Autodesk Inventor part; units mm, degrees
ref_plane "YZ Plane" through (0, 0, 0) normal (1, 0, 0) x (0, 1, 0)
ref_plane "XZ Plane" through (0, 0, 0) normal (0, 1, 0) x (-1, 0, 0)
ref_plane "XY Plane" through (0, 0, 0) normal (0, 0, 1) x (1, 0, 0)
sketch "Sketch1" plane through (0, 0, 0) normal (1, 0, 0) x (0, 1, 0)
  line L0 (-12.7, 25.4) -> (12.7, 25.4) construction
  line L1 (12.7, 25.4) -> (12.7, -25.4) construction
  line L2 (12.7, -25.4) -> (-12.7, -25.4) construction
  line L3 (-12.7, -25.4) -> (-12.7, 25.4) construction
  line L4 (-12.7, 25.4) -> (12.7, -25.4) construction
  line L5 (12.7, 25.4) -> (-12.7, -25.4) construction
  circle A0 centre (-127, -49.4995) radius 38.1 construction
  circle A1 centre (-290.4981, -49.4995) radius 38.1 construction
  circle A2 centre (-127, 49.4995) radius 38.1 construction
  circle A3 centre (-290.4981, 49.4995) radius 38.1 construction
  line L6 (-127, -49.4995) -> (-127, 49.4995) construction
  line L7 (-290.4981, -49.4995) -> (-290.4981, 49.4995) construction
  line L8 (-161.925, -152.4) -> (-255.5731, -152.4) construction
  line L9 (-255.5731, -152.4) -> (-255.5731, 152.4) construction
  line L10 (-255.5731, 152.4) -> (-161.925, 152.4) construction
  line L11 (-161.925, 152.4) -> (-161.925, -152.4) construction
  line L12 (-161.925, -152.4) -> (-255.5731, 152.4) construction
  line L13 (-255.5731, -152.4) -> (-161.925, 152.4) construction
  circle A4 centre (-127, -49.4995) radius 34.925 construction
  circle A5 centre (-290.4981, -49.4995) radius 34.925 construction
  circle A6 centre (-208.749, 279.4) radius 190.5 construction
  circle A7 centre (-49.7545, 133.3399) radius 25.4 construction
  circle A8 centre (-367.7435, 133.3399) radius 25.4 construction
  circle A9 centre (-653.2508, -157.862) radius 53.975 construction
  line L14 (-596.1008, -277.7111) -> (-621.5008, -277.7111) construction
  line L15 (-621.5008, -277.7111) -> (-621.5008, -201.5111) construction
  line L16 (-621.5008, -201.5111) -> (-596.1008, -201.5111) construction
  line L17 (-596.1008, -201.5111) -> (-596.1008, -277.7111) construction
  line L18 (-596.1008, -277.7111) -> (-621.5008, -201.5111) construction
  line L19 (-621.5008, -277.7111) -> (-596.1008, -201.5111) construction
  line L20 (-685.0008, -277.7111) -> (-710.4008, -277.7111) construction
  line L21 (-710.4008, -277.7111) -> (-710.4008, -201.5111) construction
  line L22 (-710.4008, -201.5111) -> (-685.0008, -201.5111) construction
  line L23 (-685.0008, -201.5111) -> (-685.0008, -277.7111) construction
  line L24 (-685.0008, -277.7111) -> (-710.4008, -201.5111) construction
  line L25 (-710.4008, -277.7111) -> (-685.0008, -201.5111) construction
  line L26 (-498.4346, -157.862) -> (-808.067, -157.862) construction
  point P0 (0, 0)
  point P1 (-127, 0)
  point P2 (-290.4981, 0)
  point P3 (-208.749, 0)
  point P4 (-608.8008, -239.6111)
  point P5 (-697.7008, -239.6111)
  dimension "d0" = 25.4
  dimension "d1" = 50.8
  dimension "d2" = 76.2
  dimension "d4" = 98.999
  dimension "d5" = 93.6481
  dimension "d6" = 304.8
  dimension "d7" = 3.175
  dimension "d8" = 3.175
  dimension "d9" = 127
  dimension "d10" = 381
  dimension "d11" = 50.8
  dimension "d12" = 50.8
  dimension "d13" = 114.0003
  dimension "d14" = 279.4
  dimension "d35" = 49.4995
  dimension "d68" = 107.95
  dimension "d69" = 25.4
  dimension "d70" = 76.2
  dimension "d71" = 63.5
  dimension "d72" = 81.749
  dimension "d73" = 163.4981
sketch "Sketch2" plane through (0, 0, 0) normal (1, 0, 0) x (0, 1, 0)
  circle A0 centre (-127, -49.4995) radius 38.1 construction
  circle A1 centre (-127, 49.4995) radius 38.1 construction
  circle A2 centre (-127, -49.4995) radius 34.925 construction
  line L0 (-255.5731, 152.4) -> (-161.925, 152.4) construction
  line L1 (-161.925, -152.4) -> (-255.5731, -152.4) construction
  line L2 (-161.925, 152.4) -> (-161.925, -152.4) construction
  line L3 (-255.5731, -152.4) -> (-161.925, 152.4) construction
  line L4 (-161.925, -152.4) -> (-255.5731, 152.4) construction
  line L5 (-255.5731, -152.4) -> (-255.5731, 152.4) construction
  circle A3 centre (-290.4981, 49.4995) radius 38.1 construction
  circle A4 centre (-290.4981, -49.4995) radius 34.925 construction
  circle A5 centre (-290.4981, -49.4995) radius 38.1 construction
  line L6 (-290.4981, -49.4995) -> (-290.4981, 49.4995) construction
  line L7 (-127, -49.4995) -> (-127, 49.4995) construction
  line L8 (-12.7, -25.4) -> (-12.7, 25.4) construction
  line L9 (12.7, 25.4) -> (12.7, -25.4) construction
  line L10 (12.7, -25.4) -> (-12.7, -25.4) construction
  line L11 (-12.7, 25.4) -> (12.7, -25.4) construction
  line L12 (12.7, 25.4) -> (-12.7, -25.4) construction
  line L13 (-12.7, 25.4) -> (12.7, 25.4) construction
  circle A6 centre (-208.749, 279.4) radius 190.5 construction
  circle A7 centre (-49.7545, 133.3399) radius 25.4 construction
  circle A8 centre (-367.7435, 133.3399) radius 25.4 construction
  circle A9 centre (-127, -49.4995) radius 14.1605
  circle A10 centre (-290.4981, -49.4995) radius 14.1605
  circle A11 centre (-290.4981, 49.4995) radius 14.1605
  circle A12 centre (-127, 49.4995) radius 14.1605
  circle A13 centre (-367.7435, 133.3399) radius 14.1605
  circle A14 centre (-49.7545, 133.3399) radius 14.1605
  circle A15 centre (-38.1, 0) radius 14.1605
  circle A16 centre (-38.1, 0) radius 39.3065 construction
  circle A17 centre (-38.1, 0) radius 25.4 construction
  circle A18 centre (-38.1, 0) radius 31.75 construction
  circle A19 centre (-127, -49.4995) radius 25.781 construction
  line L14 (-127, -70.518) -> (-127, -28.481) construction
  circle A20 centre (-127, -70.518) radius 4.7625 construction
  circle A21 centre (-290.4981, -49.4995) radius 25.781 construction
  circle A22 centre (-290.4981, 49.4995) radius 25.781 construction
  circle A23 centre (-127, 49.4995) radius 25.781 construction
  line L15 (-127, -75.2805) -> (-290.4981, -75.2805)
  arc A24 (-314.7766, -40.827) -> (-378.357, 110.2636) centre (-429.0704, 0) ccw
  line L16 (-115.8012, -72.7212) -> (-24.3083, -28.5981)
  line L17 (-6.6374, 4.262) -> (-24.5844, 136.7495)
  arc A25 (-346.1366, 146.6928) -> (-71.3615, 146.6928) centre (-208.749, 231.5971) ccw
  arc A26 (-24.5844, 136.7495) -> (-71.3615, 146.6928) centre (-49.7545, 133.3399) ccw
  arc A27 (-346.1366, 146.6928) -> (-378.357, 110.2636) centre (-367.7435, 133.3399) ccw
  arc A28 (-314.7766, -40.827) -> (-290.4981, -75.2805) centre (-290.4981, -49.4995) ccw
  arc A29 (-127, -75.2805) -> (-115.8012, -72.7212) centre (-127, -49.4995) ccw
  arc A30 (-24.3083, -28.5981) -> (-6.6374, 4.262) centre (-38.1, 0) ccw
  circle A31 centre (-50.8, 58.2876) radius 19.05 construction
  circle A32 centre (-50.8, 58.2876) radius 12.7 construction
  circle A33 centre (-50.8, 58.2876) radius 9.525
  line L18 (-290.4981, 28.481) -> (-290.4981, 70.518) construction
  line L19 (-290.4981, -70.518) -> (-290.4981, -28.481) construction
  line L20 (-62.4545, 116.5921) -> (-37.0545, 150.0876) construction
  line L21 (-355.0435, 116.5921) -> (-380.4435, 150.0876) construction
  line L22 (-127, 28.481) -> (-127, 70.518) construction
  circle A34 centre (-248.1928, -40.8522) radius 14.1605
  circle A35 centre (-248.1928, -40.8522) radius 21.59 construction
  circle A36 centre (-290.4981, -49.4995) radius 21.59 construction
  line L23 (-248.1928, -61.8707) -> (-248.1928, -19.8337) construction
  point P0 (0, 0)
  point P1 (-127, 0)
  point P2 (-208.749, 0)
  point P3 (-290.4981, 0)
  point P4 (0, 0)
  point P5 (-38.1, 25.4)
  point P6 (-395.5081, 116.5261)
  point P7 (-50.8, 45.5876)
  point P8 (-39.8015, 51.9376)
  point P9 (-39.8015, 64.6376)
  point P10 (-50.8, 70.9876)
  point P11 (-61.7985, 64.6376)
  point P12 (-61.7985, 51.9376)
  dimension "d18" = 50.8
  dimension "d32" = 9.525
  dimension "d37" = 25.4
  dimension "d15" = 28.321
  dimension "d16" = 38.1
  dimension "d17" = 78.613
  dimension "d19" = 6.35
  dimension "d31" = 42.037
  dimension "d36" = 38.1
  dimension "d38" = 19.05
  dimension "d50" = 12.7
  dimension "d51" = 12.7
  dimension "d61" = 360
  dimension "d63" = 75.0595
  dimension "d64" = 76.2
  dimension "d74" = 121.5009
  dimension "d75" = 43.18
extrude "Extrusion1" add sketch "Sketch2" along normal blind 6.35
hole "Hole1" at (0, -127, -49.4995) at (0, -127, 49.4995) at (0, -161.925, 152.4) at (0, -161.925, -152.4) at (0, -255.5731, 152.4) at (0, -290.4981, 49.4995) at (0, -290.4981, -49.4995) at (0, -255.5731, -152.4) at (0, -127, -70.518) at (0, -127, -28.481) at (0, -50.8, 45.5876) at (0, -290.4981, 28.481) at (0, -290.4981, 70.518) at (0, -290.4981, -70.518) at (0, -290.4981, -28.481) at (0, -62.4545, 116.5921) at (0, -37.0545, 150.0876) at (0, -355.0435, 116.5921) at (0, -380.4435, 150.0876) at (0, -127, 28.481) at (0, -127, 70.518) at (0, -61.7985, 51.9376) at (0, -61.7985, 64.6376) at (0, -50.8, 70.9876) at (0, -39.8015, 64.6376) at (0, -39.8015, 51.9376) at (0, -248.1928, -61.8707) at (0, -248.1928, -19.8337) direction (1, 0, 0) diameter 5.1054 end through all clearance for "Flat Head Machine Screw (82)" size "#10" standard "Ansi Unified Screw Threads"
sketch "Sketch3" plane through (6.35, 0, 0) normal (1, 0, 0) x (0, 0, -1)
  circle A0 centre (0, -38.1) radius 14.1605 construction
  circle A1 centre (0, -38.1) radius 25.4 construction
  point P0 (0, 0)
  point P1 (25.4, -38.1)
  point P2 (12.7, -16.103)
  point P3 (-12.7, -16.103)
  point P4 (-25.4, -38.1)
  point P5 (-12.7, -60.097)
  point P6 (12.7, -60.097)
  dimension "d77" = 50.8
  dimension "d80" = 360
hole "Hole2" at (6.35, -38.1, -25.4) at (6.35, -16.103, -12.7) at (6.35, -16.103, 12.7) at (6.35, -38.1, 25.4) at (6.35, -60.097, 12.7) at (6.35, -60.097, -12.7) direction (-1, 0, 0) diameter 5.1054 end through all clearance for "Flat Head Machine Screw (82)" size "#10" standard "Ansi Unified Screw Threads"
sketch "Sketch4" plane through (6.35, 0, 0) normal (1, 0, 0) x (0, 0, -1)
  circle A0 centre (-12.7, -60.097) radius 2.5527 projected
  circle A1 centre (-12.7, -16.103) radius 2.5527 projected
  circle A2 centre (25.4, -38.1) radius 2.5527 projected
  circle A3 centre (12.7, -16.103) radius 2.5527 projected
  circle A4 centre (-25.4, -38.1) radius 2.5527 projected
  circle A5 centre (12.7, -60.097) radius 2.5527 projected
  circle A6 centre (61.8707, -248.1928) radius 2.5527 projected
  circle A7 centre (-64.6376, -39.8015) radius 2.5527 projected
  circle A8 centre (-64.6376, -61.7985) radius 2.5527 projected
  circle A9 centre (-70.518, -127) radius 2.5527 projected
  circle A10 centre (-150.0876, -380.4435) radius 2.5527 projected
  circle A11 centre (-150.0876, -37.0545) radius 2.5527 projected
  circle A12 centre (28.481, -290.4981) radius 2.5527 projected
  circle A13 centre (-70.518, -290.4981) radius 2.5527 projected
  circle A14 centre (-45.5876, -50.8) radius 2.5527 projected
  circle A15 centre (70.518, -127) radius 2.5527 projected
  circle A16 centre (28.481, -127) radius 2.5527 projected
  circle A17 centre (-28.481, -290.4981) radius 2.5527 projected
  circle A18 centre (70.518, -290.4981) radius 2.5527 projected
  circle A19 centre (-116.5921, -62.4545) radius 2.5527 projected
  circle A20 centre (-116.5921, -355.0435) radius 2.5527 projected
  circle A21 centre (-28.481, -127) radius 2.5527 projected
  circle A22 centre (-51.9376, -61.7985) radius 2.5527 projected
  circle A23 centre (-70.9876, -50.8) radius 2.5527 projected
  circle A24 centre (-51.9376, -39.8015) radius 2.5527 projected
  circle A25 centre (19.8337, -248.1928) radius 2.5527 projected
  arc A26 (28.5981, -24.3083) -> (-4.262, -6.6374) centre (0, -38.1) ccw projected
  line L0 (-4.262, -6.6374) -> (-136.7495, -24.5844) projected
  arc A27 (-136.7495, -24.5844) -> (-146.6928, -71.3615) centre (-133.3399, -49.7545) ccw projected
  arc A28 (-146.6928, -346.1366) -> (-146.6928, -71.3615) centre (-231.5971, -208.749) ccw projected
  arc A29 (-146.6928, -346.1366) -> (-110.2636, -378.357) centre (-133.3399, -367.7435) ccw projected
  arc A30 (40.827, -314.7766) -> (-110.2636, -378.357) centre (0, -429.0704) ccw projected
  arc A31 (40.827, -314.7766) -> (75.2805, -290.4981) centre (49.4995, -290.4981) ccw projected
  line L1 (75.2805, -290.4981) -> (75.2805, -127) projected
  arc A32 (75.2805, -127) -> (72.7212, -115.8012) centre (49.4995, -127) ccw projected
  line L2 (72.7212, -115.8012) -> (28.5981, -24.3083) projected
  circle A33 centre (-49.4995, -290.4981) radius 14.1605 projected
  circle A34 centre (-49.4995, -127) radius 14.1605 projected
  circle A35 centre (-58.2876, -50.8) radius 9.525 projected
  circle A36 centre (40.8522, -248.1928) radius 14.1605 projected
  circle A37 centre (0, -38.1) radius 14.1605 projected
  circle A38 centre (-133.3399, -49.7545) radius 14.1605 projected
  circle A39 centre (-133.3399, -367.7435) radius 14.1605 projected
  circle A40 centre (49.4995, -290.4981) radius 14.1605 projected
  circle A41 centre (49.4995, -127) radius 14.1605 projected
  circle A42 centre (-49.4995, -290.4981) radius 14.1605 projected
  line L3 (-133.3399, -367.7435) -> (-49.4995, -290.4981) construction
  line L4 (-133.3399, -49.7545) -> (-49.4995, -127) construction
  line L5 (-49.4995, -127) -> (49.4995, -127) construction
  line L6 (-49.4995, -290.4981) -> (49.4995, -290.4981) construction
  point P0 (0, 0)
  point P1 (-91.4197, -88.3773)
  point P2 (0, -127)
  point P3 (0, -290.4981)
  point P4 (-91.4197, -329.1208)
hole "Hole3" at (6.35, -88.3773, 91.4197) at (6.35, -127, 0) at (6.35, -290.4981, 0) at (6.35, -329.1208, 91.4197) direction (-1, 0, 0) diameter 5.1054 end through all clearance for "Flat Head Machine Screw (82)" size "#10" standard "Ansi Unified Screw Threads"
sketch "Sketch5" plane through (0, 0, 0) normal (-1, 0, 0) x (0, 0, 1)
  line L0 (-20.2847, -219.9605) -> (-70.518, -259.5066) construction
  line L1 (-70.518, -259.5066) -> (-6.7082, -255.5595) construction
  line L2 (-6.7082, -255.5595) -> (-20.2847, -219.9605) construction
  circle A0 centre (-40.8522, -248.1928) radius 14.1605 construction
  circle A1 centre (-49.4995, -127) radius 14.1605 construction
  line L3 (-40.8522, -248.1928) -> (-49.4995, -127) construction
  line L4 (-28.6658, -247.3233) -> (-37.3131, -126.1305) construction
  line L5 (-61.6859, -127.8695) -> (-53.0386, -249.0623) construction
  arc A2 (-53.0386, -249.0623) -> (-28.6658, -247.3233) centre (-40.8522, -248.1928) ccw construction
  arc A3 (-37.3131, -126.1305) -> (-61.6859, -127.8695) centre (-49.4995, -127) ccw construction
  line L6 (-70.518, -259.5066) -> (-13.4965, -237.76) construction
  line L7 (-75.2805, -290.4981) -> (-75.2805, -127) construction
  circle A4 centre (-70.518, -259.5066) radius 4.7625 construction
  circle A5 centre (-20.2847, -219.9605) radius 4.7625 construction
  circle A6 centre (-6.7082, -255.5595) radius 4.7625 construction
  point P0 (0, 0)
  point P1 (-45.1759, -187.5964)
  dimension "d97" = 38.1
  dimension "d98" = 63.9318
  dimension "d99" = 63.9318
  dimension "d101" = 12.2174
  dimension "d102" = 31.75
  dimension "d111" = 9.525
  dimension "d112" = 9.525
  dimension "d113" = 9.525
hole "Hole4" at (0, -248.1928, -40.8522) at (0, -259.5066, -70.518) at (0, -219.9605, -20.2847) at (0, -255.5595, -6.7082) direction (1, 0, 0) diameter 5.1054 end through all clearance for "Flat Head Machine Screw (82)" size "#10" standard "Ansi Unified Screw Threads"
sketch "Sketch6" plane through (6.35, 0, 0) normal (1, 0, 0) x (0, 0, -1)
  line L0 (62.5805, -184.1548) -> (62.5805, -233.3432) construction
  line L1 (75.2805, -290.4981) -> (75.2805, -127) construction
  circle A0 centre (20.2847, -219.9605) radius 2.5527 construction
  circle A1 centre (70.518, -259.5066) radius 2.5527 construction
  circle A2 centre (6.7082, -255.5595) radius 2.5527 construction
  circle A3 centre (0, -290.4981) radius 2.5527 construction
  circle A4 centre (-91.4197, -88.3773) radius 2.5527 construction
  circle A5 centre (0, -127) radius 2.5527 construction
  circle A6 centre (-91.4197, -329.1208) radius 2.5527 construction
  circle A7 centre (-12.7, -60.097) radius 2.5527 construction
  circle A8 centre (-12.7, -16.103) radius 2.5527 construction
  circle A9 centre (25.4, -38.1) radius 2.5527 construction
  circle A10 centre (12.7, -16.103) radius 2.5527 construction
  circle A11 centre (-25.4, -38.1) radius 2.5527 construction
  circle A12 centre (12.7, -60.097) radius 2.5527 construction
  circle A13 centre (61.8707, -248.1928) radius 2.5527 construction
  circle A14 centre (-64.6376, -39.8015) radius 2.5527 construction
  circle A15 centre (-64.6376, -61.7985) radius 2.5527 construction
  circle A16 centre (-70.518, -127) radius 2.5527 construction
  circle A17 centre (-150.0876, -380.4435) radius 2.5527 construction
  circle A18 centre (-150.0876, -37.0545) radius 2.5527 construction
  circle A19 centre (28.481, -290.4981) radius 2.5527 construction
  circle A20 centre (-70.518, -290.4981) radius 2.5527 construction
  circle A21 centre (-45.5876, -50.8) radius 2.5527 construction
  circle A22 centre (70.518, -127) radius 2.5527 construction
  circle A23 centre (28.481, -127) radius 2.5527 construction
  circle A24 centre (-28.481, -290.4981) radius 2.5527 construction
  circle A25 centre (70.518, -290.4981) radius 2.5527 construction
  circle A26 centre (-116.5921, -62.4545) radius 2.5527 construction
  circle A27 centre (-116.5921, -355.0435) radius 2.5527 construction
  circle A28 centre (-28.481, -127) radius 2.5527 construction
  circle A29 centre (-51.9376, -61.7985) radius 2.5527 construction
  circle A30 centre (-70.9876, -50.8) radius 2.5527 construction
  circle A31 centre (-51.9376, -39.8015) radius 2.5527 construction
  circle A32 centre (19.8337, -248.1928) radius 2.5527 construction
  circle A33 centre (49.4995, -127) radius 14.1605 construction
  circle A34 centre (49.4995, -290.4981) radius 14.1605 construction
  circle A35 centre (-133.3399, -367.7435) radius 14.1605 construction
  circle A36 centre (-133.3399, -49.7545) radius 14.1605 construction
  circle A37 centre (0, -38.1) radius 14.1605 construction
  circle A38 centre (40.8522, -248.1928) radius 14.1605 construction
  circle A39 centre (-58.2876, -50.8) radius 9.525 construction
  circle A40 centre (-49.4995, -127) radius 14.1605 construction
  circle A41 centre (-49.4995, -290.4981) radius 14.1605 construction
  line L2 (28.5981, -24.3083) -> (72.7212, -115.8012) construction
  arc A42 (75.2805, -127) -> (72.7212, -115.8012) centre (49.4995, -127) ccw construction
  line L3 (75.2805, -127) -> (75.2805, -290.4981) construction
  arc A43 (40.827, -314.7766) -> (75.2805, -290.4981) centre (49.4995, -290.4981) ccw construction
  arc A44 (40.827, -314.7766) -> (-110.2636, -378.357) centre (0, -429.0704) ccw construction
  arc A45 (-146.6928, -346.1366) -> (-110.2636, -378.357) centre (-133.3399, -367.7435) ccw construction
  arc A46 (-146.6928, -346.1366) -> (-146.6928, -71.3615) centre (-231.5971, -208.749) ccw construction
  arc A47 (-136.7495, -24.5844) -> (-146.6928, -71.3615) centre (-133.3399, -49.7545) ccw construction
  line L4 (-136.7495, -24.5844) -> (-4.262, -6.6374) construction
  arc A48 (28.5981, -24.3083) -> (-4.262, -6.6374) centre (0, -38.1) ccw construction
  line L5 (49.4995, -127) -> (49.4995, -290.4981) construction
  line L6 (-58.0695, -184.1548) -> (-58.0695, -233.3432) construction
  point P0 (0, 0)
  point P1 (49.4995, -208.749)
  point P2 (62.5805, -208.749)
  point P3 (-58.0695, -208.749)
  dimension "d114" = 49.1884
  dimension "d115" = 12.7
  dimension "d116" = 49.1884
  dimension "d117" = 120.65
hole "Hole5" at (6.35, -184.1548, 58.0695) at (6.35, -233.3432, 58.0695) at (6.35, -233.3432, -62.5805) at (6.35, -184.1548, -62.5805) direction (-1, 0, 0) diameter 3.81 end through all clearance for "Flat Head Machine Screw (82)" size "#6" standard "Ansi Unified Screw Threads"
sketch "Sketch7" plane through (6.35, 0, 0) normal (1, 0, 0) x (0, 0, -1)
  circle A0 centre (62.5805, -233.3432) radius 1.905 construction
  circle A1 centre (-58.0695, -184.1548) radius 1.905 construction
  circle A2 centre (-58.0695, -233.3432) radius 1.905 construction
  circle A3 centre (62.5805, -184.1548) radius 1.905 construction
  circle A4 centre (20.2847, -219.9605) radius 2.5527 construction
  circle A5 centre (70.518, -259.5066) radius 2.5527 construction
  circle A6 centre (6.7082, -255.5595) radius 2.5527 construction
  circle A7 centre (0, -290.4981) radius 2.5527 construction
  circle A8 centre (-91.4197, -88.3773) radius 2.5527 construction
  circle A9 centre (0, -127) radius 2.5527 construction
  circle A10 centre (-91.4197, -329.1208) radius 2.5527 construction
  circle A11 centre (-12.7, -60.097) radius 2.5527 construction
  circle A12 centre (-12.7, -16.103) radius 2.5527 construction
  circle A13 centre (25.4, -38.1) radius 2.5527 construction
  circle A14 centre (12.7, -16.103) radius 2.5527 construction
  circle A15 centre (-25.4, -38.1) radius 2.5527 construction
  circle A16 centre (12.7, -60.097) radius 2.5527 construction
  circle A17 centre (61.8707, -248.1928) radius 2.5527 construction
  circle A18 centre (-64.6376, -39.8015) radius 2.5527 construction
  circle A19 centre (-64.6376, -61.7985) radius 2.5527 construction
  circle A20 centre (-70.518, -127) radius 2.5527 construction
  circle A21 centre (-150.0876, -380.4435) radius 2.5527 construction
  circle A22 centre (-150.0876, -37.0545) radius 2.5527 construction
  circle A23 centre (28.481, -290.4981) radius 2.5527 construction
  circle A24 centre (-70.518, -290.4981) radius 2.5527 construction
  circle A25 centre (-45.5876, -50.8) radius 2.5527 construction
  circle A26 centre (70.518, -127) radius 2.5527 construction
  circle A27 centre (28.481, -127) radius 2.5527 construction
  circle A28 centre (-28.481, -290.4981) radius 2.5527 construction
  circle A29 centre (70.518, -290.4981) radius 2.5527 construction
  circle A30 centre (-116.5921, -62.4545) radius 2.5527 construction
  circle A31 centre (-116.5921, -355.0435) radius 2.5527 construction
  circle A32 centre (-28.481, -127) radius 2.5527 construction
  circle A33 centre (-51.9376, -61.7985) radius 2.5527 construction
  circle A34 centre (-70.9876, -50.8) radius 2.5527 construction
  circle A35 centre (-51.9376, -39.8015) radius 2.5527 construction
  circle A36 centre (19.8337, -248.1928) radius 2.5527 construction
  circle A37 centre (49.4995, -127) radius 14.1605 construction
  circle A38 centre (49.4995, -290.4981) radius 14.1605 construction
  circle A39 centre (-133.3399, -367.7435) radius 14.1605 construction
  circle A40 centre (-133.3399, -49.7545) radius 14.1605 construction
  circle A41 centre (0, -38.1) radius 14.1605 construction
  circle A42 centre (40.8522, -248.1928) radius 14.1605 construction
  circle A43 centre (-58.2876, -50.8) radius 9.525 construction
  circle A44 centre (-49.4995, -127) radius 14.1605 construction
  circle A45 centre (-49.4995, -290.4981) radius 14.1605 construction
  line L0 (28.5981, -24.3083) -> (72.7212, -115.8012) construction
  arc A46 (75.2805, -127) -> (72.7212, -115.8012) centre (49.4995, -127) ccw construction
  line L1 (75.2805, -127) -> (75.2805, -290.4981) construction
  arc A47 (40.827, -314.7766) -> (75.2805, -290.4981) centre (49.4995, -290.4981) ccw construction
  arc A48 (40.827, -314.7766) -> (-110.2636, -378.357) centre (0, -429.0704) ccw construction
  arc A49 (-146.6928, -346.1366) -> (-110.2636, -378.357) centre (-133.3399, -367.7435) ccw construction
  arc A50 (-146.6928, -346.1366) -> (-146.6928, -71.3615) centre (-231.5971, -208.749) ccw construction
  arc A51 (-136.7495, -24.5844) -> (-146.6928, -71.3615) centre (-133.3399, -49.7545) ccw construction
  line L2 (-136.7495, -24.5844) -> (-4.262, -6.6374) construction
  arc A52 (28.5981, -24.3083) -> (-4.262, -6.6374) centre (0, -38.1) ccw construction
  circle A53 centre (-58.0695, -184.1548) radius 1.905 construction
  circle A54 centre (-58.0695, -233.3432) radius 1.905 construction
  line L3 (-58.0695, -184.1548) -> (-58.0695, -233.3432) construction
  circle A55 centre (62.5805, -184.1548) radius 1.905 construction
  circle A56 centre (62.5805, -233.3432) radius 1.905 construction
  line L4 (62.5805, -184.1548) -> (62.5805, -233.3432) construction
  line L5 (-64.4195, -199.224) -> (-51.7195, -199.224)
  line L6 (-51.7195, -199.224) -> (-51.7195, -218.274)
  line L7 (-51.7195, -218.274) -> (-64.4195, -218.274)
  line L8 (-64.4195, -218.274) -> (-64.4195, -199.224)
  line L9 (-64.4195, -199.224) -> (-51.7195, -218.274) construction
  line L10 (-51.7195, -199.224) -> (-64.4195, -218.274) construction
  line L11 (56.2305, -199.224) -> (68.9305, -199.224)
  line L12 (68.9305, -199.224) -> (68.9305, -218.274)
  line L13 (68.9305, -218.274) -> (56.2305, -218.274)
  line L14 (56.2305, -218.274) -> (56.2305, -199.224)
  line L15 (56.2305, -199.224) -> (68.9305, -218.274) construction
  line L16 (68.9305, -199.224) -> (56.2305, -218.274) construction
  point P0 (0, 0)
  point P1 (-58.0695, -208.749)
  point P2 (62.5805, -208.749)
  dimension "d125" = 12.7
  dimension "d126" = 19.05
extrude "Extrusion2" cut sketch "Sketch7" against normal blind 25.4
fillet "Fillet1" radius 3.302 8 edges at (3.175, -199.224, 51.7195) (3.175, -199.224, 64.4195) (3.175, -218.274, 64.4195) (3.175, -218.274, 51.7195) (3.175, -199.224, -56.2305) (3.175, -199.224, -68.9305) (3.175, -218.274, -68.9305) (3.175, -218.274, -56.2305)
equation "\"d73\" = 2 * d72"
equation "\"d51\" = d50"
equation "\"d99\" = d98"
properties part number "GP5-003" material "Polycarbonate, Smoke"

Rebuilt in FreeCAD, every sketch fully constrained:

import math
import FreeCAD as App
import Part
import Sketcher
from FreeCAD import Vector
Q = App.Units.Quantity


def edges_at(feature, points):
    """Names of the edges that pass closest to the given points."""
    edges = feature.Shape.Edges
    near = lambda p: min(range(len(edges)), key=lambda i: edges[i].distToShape(Part.Vertex(*p))[0])
    return sorted({f"Edge{near(p) + 1}" for p in points})


def add_polygon(sketch, points):
    """Adds a closed chain of lines whose ends are joined by coincident constraints."""
    first, n = sketch.GeometryCount, len(points)
    for a, b in zip(points, points[1:] + points[:1]):
        sketch.addGeometry(Part.LineSegment(App.Vector(*a, 0), App.Vector(*b, 0)), False)
    for i in range(n):
        sketch.addConstraint(Sketcher.Constraint("Coincident", first + i, 2, first + (i + 1) % n, 1))

doc = App.newDocument("Part")
body = doc.addObject("PartDesign::Body", "Body")

# Sketch on YZ plane
sketch1 = doc.addObject("Sketcher::SketchObject", "Sketch")
body.addObject(sketch1)
sketch1.AttachmentSupport = (doc.YZ_Plane, [""])
sketch1.MapMode = "FlatFace"
sketch1.addGeometry([
    Part.LineSegment(Vector(-290, -75, 0), Vector(-127, -75, 0)),  # 0
    Part.ArcOfCircle(Part.Circle(Vector(-127, -49, 0), Vector(0, 0, 1), 26), math.radians(-90), math.radians(-64)),  # 1
    Part.LineSegment(Vector(-116, -73, 0), Vector(-24, -29, 0)),  # 2
    Part.ArcOfCircle(Part.Circle(Vector(-38, 0, 0), Vector(0, 0, 1), 32), math.radians(-64), math.radians(8)),  # 3
    Part.LineSegment(Vector(-7, 4, 0), Vector(-25, 137, 0)),  # 4
    Part.ArcOfCircle(Part.Circle(Vector(-50, 133, 0), Vector(0, 0, 1), 25), math.radians(8), math.radians(148)),  # 5
    Part.ArcOfCircle(Part.Circle(Vector(-209, 232, 0), Vector(0, 0, 1), 162), math.radians(-148), math.radians(-32)),  # 6
    Part.ArcOfCircle(Part.Circle(Vector(-368, 133, 0), Vector(0, 0, 1), 25), math.radians(32), math.radians(245)),  # 7
    Part.ArcOfCircle(Part.Circle(Vector(-429, 0, 0), Vector(0, 0, 1), 121), math.radians(-20), math.radians(65)),  # 8
    Part.ArcOfCircle(Part.Circle(Vector(-290, -49, 0), Vector(0, 0, 1), 26), math.radians(160), math.radians(270)),  # 9
    Part.Circle(Vector(-290, -49, 0), Vector(0, 0, 1), 14),  # 10
    Part.Circle(Vector(-248, -41, 0), Vector(0, 0, 1), 14),  # 11
    Part.Circle(Vector(-127, -49, 0), Vector(0, 0, 1), 14),  # 12
    Part.Circle(Vector(-38, 0, 0), Vector(0, 0, 1), 14),  # 13
    Part.Circle(Vector(-290, 49, 0), Vector(0, 0, 1), 14),  # 14
    Part.Circle(Vector(-368, 133, 0), Vector(0, 0, 1), 14),  # 15
    Part.Circle(Vector(-127, 49, 0), Vector(0, 0, 1), 14),  # 16
    Part.Circle(Vector(-51, 58, 0), Vector(0, 0, 1), 10),  # 17
    Part.Circle(Vector(-50, 133, 0), Vector(0, 0, 1), 14),  # 18
], False)
sketch1.addConstraint([
    Sketcher.Constraint("Tangent", 0, 2, 1, 1),
    Sketcher.Constraint("Tangent", 1, 2, 2, 1),
    Sketcher.Constraint("Tangent", 2, 2, 3, 1),
    Sketcher.Constraint("Tangent", 3, 2, 4, 1),
    Sketcher.Constraint("Tangent", 4, 2, 5, 1),
    Sketcher.Constraint("Tangent", 5, 2, 6, 2),
    Sketcher.Constraint("Tangent", 6, 1, 7, 1),
    Sketcher.Constraint("Tangent", 7, 2, 8, 2),
    Sketcher.Constraint("Tangent", 8, 1, 9, 1),
    Sketcher.Constraint("Tangent", 9, 2, 0, 1),
    Sketcher.Constraint("Horizontal", 0),
    Sketcher.Constraint("Coincident", 10, 3, 9, 3),
    Sketcher.Constraint("Coincident", 12, 3, 1, 3),
    Sketcher.Constraint("Coincident", 13, 3, 3, 3),
    Sketcher.Constraint("Coincident", 15, 3, 7, 3),
    Sketcher.Constraint("Coincident", 18, 3, 5, 3),
    Sketcher.Constraint("Equal", 5, 7),
    Sketcher.Constraint("Equal", 1, 9),
    Sketcher.Constraint("Equal", 10, 11),
    Sketcher.Constraint("Equal", 11, 12),
    Sketcher.Constraint("Equal", 12, 13),
    Sketcher.Constraint("Equal", 13, 14),
    Sketcher.Constraint("Equal", 14, 15),
    Sketcher.Constraint("Equal", 15, 16),
    Sketcher.Constraint("Equal", 16, 18),
    Sketcher.Constraint("Symmetric", 9, 3, 14, 3, -1),
    Sketcher.Constraint("Symmetric", 1, 3, 16, 3, -1),
    Sketcher.Constraint("PointOnObject", 3, 3, -1),
    Sketcher.Constraint("PointOnObject", 8, 3, -1),
    Sketcher.Constraint("Horizontal", 5, 3, 7, 3),
    Sketcher.Constraint("Radius", 5, Q("1 in")),
    Sketcher.Constraint("Diameter", 17, Q("0.75 in")),
    Sketcher.Constraint("Diameter", 10, Q("1.115 in")),
    Sketcher.Constraint("DistanceX", 17, 3, -1, 1, Q("2 in")),
    Sketcher.Constraint("DistanceX", 16, 3, 17, 3, Q("3 in")),
    Sketcher.Constraint("DistanceX", 3, 3, -1, 1, Q("1.5 in")),
    Sketcher.Constraint("Radius", 3, Q("1.25 in")),
    Sketcher.Constraint("Radius", 1, Q("1.015 in")),
    Sketcher.Constraint("Radius", 6, Q("6.3585 in")),
    Sketcher.Constraint("Radius", 8, 121.3669),
    Sketcher.Constraint("DistanceY", -1, 1, 6, 3, Q("9.118 in")),
    Sketcher.Constraint("DistanceY", 16, 3, 17, 3, Q("0.346 in")),
    Sketcher.Constraint("DistanceY", 3, 2, 17, 3, Q("2.127 in")),
    Sketcher.Constraint("DistanceX", 7, 2, 14, 3, Q("3.459 in")),
    Sketcher.Constraint("DistanceY", 11, 3, 8, 1, Q("0.001 in")),
    Sketcher.Constraint("DistanceX", 0, 1, 0, 2, 163.498),
    Sketcher.Constraint("DistanceX", 8, 1, 11, 3, Q("2.6214 in")),
])
pad1 = doc.addObject("PartDesign::Pad", "Pad")
body.addObject(pad1)
pad1.Profile = sketch1
pad1.Length = Q("0.25 in")

# Sketch on YZ plane
sketch2 = doc.addObject("Sketcher::SketchObject", "Sketch001")
body.addObject(sketch2)
sketch2.AttachmentSupport = (doc.YZ_Plane, [""])
sketch2.MapMode = "FlatFace"
sketch2.addGeometry([
    Part.Circle(Vector(-127, -49.5, 0), Vector(0, 0, 1), 2.6),  # 0
    Part.Circle(Vector(-127, 49.5, 0), Vector(0, 0, 1), 2.6),  # 1
    Part.Circle(Vector(-161.9, 152.4, 0), Vector(0, 0, 1), 2.6),  # 2
    Part.Circle(Vector(-161.9, -152.4, 0), Vector(0, 0, 1), 2.6),  # 3
    Part.Circle(Vector(-255.6, 152.4, 0), Vector(0, 0, 1), 2.6),  # 4
    Part.Circle(Vector(-290.5, 49.5, 0), Vector(0, 0, 1), 2.6),  # 5
    Part.Circle(Vector(-290.5, -49.5, 0), Vector(0, 0, 1), 2.6),  # 6
    Part.Circle(Vector(-255.6, -152.4, 0), Vector(0, 0, 1), 2.6),  # 7
    Part.Circle(Vector(-127, -70.5, 0), Vector(0, 0, 1), 2.6),  # 8
    Part.Circle(Vector(-127, -28.5, 0), Vector(0, 0, 1), 2.6),  # 9
    Part.Circle(Vector(-50.8, 45.6, 0), Vector(0, 0, 1), 2.6),  # 10
    Part.Circle(Vector(-290.5, 28.5, 0), Vector(0, 0, 1), 2.6),  # 11
    Part.Circle(Vector(-290.5, 70.5, 0), Vector(0, 0, 1), 2.6),  # 12
    Part.Circle(Vector(-290.5, -70.5, 0), Vector(0, 0, 1), 2.6),  # 13
    Part.Circle(Vector(-290.5, -28.5, 0), Vector(0, 0, 1), 2.6),  # 14
    Part.Circle(Vector(-62.5, 116.6, 0), Vector(0, 0, 1), 2.6),  # 15
    Part.Circle(Vector(-37.1, 150.1, 0), Vector(0, 0, 1), 2.6),  # 16
    Part.Circle(Vector(-355, 116.6, 0), Vector(0, 0, 1), 2.6),  # 17
    Part.Circle(Vector(-380.4, 150.1, 0), Vector(0, 0, 1), 2.6),  # 18
    Part.Circle(Vector(-127, 28.5, 0), Vector(0, 0, 1), 2.6),  # 19
    Part.Circle(Vector(-127, 70.5, 0), Vector(0, 0, 1), 2.6),  # 20
    Part.Circle(Vector(-61.8, 51.9, 0), Vector(0, 0, 1), 2.6),  # 21
    Part.Circle(Vector(-61.8, 64.6, 0), Vector(0, 0, 1), 2.6),  # 22
    Part.Circle(Vector(-50.8, 71, 0), Vector(0, 0, 1), 2.6),  # 23
    Part.Circle(Vector(-39.8, 64.6, 0), Vector(0, 0, 1), 2.6),  # 24
    Part.Circle(Vector(-39.8, 51.9, 0), Vector(0, 0, 1), 2.6),  # 25
    Part.Circle(Vector(-248.2, -61.9, 0), Vector(0, 0, 1), 2.6),  # 26
    Part.Circle(Vector(-248.2, -19.8, 0), Vector(0, 0, 1), 2.6),  # 27
], False)
sketch2.addConstraint([
    Sketcher.Constraint("Equal", 0, 1),
    Sketcher.Constraint("Equal", 1, 2),
    Sketcher.Constraint("Equal", 2, 3),
    Sketcher.Constraint("Equal", 3, 4),
    Sketcher.Constraint("Equal", 4, 5),
    Sketcher.Constraint("Equal", 5, 6),
    Sketcher.Constraint("Equal", 6, 7),
    Sketcher.Constraint("Equal", 7, 8),
    Sketcher.Constraint("Equal", 8, 9),
    Sketcher.Constraint("Equal", 9, 10),
    Sketcher.Constraint("Equal", 10, 11),
    Sketcher.Constraint("Equal", 11, 12),
    Sketcher.Constraint("Equal", 12, 13),
    Sketcher.Constraint("Equal", 13, 14),
    Sketcher.Constraint("Equal", 14, 15),
    Sketcher.Constraint("Equal", 15, 16),
    Sketcher.Constraint("Equal", 16, 17),
    Sketcher.Constraint("Equal", 17, 18),
    Sketcher.Constraint("Equal", 18, 19),
    Sketcher.Constraint("Equal", 19, 20),
    Sketcher.Constraint("Equal", 20, 21),
    Sketcher.Constraint("Equal", 21, 22),
    Sketcher.Constraint("Equal", 22, 23),
    Sketcher.Constraint("Equal", 23, 24),
    Sketcher.Constraint("Equal", 24, 25),
    Sketcher.Constraint("Equal", 25, 26),
    Sketcher.Constraint("Equal", 26, 27),
    Sketcher.Constraint("Symmetric", 0, 3, 1, 3, -1),
    Sketcher.Constraint("Symmetric", 2, 3, 3, 3, -1),
    Sketcher.Constraint("Symmetric", 5, 3, 6, 3, -1),
    Sketcher.Constraint("Symmetric", 4, 3, 7, 3, -1),
    Sketcher.Constraint("Symmetric", 12, 3, 13, 3, -1),
    Sketcher.Constraint("Symmetric", 11, 3, 14, 3, -1),
    Sketcher.Constraint("Symmetric", 9, 3, 19, 3, -1),
    Sketcher.Constraint("Symmetric", 8, 3, 20, 3, -1),
    Sketcher.Constraint("Horizontal", 2, 3, 4, 3),
    Sketcher.Constraint("Horizontal", 1, 3, 5, 3),
    Sketcher.Constraint("Horizontal", 8, 3, 13, 3),
    Sketcher.Constraint("Horizontal", 9, 3, 14, 3),
    Sketcher.Constraint("Horizontal", 15, 3, 17, 3),
    Sketcher.Constraint("Horizontal", 16, 3, 18, 3),
    Sketcher.Constraint("Horizontal", 22, 3, 24, 3),
    Sketcher.Constraint("Horizontal", 21, 3, 25, 3),
    Sketcher.Constraint("Vertical", 1, 3, 8, 3),
    Sketcher.Constraint("Vertical", 8, 3, 9, 3),
    Sketcher.Constraint("Vertical", 6, 3, 11, 3),
    Sketcher.Constraint("Vertical", 11, 3, 12, 3),
    Sketcher.Constraint("Vertical", 21, 3, 22, 3),
    Sketcher.Constraint("Vertical", 10, 3, 23, 3),
    Sketcher.Constraint("Vertical", 24, 3, 25, 3),
    Sketcher.Constraint("Vertical", 26, 3, 27, 3),
    Sketcher.Constraint("Diameter", 0, Q("0.201 in")),
    Sketcher.Constraint("DistanceX", 0, 3, -1, 1, Q("5 in")),
    Sketcher.Constraint("DistanceY", -1, 1, 2, 3, Q("6 in")),
    Sketcher.Constraint("DistanceX", 10, 3, -1, 1, Q("2 in")),
    Sketcher.Constraint("DistanceX", 15, 3, 16, 3, Q("1 in")),
    Sketcher.Constraint("DistanceX", 18, 3, 17, 3, Q("1 in")),
    Sketcher.Constraint("DistanceY", 10, 3, 23, 3, Q("1 in")),
    Sketcher.Constraint("DistanceY", 21, 3, 22, 3, Q("0.5 in")),
    Sketcher.Constraint("DistanceY", 10, 3, 21, 3, Q("0.25 in")),
    Sketcher.Constraint("DistanceX", 2, 3, -1, 1, Q("6.375 in")),
    Sketcher.Constraint("DistanceX", 21, 3, -1, 1, Q("2.433 in")),
    Sketcher.Constraint("DistanceX", 24, 3, -1, 1, Q("1.567 in")),
    Sketcher.Constraint("DistanceX", 5, 3, 4, 3, Q("1.375 in")),
    Sketcher.Constraint("DistanceY", 8, 3, 9, 3, Q("1.655 in")),
    Sketcher.Constraint("DistanceY", 10, 3, 1, 3, Q("0.154 in")),
    Sketcher.Constraint("DistanceY", 26, 3, 27, 3, Q("1.655 in")),
    Sketcher.Constraint("DistanceY", 0, 3, -1, 1, Q("1.9488 in")),
    Sketcher.Constraint("DistanceY", 8, 3, -1, 1, Q("2.7763 in")),
    Sketcher.Constraint("DistanceX", 17, 3, -1, 1, Q("13.9781 in")),
    Sketcher.Constraint("DistanceX", 4, 3, -1, 1, 255.573),
    Sketcher.Constraint("DistanceX", 15, 3, -1, 1, 62.4545),
    Sketcher.Constraint("DistanceY", -1, 1, 15, 3, 116.592),
    Sketcher.Constraint("DistanceY", -1, 1, 16, 3, 150.0876),
    Sketcher.Constraint("DistanceX", 26, 3, -1, 1, 248.1928),
    Sketcher.Constraint("DistanceY", 26, 3, -1, 1, 61.8707),
])
doc.recompute()
hole = doc.addObject("PartDesign::Hole", "Hole")
body.addObject(hole)
hole.Profile = sketch2
hole.ThreadType = "None"
hole.Diameter = Q("0.201 in")
hole.DepthType = "ThroughAll"
hole.Reversed = True

# Sketch on YZ plane
sketch3 = doc.addObject("Sketcher::SketchObject", "Sketch002")
body.addObject(sketch3)
sketch3.AttachmentSupport = (doc.YZ_Plane, [""])
sketch3.MapMode = "FlatFace"
sketch3.AttachmentOffset = App.Placement(Vector(0, 0, 0.25 * 25.4), App.Rotation())
sketch3.addGeometry([
    Part.Circle(Vector(-38.1, -25.4, 0), Vector(0, 0, 1), 2.6),  # 0
    Part.Circle(Vector(-16.1, -12.7, 0), Vector(0, 0, 1), 2.6),  # 1
    Part.Circle(Vector(-16.1, 12.7, 0), Vector(0, 0, 1), 2.6),  # 2
    Part.Circle(Vector(-38.1, 25.4, 0), Vector(0, 0, 1), 2.6),  # 3
    Part.Circle(Vector(-60.1, 12.7, 0), Vector(0, 0, 1), 2.6),  # 4
    Part.Circle(Vector(-60.1, -12.7, 0), Vector(0, 0, 1), 2.6),  # 5
], False)
sketch3.addConstraint([
    Sketcher.Constraint("Equal", 0, 1),
    Sketcher.Constraint("Equal", 1, 2),
    Sketcher.Constraint("Equal", 2, 3),
    Sketcher.Constraint("Equal", 3, 4),
    Sketcher.Constraint("Equal", 4, 5),
    Sketcher.Constraint("Symmetric", 1, 3, 2, 3, -1),
    Sketcher.Constraint("Symmetric", 0, 3, 3, 3, -1),
    Sketcher.Constraint("Symmetric", 4, 3, 5, 3, -1),
    Sketcher.Constraint("Horizontal", 2, 3, 4, 3),
    Sketcher.Constraint("Diameter", 0, Q("0.201 in")),
    Sketcher.Constraint("DistanceY", 0, 3, -1, 1, Q("1 in")),
    Sketcher.Constraint("DistanceY", 1, 3, 2, 3, Q("1 in")),
    Sketcher.Constraint("DistanceX", 0, 3, -1, 1, Q("1.5 in")),
    Sketcher.Constraint("DistanceX", 1, 3, -1, 1, 16.103),
    Sketcher.Constraint("DistanceX", 4, 3, -1, 1, 60.097),
])
doc.recompute()
hole2 = doc.addObject("PartDesign::Hole", "Hole001")
body.addObject(hole2)
hole2.Profile = sketch3
hole2.ThreadType = "None"
hole2.Diameter = Q("0.201 in")
hole2.DepthType = "ThroughAll"

# Sketch on YZ plane
sketch4 = doc.addObject("Sketcher::SketchObject", "Sketch003")
body.addObject(sketch4)
sketch4.AttachmentSupport = (doc.YZ_Plane, [""])
sketch4.MapMode = "FlatFace"
sketch4.AttachmentOffset = App.Placement(Vector(0, 0, 0.25 * 25.4), App.Rotation())
sketch4.addGeometry([
    Part.Circle(Vector(-88.4, 91.4, 0), Vector(0, 0, 1), 2.6),
    Part.Circle(Vector(-127, 0, 0), Vector(0, 0, 1), 2.6),
    Part.Circle(Vector(-290.5, 0, 0), Vector(0, 0, 1), 2.6),
    Part.Circle(Vector(-329.1, 91.4, 0), Vector(0, 0, 1), 2.6),
], False)
sketch4.addConstraint([
    Sketcher.Constraint("Equal", 0, 1),
    Sketcher.Constraint("Equal", 1, 2),
    Sketcher.Constraint("Equal", 2, 3),
    Sketcher.Constraint("PointOnObject", 1, 3, -1),
    Sketcher.Constraint("PointOnObject", 2, 3, -1),
    Sketcher.Constraint("Horizontal", 0, 3, 3, 3),
    Sketcher.Constraint("Diameter", 0, Q("0.201 in")),
    Sketcher.Constraint("DistanceX", 1, 3, -1, 1, Q("5 in")),
    Sketcher.Constraint("DistanceY", -1, 1, 0, 3, Q("3.5992 in")),
    Sketcher.Constraint("DistanceX", 3, 3, -1, 1, Q("12.9575 in")),
    Sketcher.Constraint("DistanceX", 2, 3, 0, 3, Q("7.9575 in")),
    Sketcher.Constraint("DistanceX", 3, 3, 0, 3, Q("9.4781 in")),
])
doc.recompute()
hole3 = doc.addObject("PartDesign::Hole", "Hole002")
body.addObject(hole3)
hole3.Profile = sketch4
hole3.ThreadType = "None"
hole3.Diameter = Q("0.201 in")
hole3.DepthType = "ThroughAll"

# Sketch on YZ plane
sketch5 = doc.addObject("Sketcher::SketchObject", "Sketch004")
body.addObject(sketch5)
sketch5.AttachmentSupport = (doc.YZ_Plane, [""])
sketch5.MapMode = "FlatFace"
sketch5.addGeometry([
    Part.Circle(Vector(-248.2, -40.9, 0), Vector(0, 0, 1), 2.6),
    Part.Circle(Vector(-259.5, -70.5, 0), Vector(0, 0, 1), 2.6),
    Part.Circle(Vector(-220, -20.3, 0), Vector(0, 0, 1), 2.6),
    Part.Circle(Vector(-255.6, -6.7, 0), Vector(0, 0, 1), 2.6),
], False)
sketch5.addConstraint([
    Sketcher.Constraint("Equal", 0, 1),
    Sketcher.Constraint("Equal", 1, 2),
    Sketcher.Constraint("Equal", 2, 3),
    Sketcher.Constraint("Diameter", 0, Q("0.201 in")),
    Sketcher.Constraint("DistanceX", 1, 3, -1, 1, Q("10.2168 in")),
    Sketcher.Constraint("DistanceY", 1, 3, -1, 1, Q("2.7763 in")),
    Sketcher.Constraint("DistanceY", 2, 3, -1, 1, Q("0.7986 in")),
    Sketcher.Constraint("DistanceX", 3, 3, -1, 1, Q("10.0614 in")),
    Sketcher.Constraint("DistanceY", 3, 3, -1, 1, Q("0.2641 in")),
    Sketcher.Constraint("DistanceX", 0, 3, 2, 3, Q("1.1115 in")),
    Sketcher.Constraint("DistanceX", 0, 3, -1, 1, 248.1928),
    Sketcher.Constraint("DistanceY", 0, 3, -1, 1, 40.8522),
])
doc.recompute()
hole4 = doc.addObject("PartDesign::Hole", "Hole003")
body.addObject(hole4)
hole4.Profile = sketch5
hole4.ThreadType = "None"
hole4.Diameter = Q("0.201 in")
hole4.DepthType = "ThroughAll"
hole4.Reversed = True

# Sketch on YZ plane
sketch6 = doc.addObject("Sketcher::SketchObject", "Sketch005")
body.addObject(sketch6)
sketch6.AttachmentSupport = (doc.YZ_Plane, [""])
sketch6.MapMode = "FlatFace"
sketch6.AttachmentOffset = App.Placement(Vector(0, 0, 0.25 * 25.4), App.Rotation())
sketch6.addGeometry([
    Part.Circle(Vector(-184.2, 58.1, 0), Vector(0, 0, 1), 1.9),
    Part.Circle(Vector(-233.3, 58.1, 0), Vector(0, 0, 1), 1.9),
    Part.Circle(Vector(-233.3, -62.6, 0), Vector(0, 0, 1), 1.9),
    Part.Circle(Vector(-184.2, -62.6, 0), Vector(0, 0, 1), 1.9),
], False)
sketch6.addConstraint([
    Sketcher.Constraint("Equal", 0, 1),
    Sketcher.Constraint("Equal", 1, 2),
    Sketcher.Constraint("Equal", 2, 3),
    Sketcher.Constraint("Horizontal", 0, 3, 1, 3),
    Sketcher.Constraint("Horizontal", 2, 3, 3, 3),
    Sketcher.Constraint("Vertical", 1, 3, 2, 3),
    Sketcher.Constraint("Vertical", 0, 3, 3, 3),
    Sketcher.Constraint("Diameter", 0, Q("0.15 in")),
    Sketcher.Constraint("DistanceY", 2, 3, 1, 3, Q("4.75 in")),
    Sketcher.Constraint("DistanceX", 0, 3, -1, 1, Q("7.2502 in")),
    Sketcher.Constraint("DistanceY", -1, 1, 0, 3, Q("2.2862 in")),
    Sketcher.Constraint("DistanceX", 1, 3, -1, 1, 233.3432),
])
doc.recompute()
hole5 = doc.addObject("PartDesign::Hole", "Hole004")
body.addObject(hole5)
hole5.Profile = sketch6
hole5.ThreadType = "None"
hole5.Diameter = Q("0.15 in")
hole5.DepthType = "ThroughAll"

# Sketch on YZ plane
sketch7 = doc.addObject("Sketcher::SketchObject", "Sketch006")
body.addObject(sketch7)
sketch7.AttachmentSupport = (doc.YZ_Plane, [""])
sketch7.MapMode = "FlatFace"
sketch7.AttachmentOffset = App.Placement(Vector(0, 0, 0.25 * 25.4), App.Rotation())
add_polygon(sketch7, [(-199, 52), (-199, 64), (-218, 64), (-218, 52)])  # lines 0-3
add_polygon(sketch7, [(-199, -69), (-199, -56), (-218, -56), (-218, -69)])  # lines 4-7
sketch7.addConstraint([
    Sketcher.Constraint("Vertical", 0),
    Sketcher.Constraint("Horizontal", 1),
    Sketcher.Constraint("Vertical", 2),
    Sketcher.Constraint("Horizontal", 3),
    Sketcher.Constraint("Vertical", 4),
    Sketcher.Constraint("Horizontal", 5),
    Sketcher.Constraint("Vertical", 6),
    Sketcher.Constraint("Horizontal", 7),
    Sketcher.Constraint("Vertical", 3, 2, 4, 2),
    Sketcher.Constraint("Vertical", 2, 2, 5, 2),
    Sketcher.Constraint("Equal", 2, 4),
    Sketcher.Constraint("DistanceY", 0, 1, 0, 2, Q("0.5 in")),
    Sketcher.Constraint("DistanceX", 1, 2, 1, 1, Q("0.75 in")),
    Sketcher.Constraint("DistanceY", 4, 2, 3, 2, Q("4.25 in")),
    Sketcher.Constraint("DistanceY", -1, 1, 0, 2, Q("2.5362 in")),
    Sketcher.Constraint("DistanceX", 0, 2, -1, 1, 199.224),
])
pocket1 = doc.addObject("PartDesign::Pocket", "Pocket")
body.addObject(pocket1)
pocket1.Profile = sketch7
pocket1.Length = Q("1 in")
doc.recompute()

fillet = doc.addObject("PartDesign::Fillet", "Fillet")
body.addObject(fillet)
fillet.Base = (pocket1, edges_at(pocket1, [
    (3.175, -199.224, 51.719),
    (3.175, -199.224, 64.419),
    (3.175, -218.274, 64.419),
    (3.175, -218.274, 51.719),
    (3.175, -199.224, -56.23),
    (3.175, -199.224, -68.93),
    (3.175, -218.274, -68.93),
    (3.175, -218.274, -56.23),
]))
fillet.Radius = Q("0.13 in")

doc.recompute()
